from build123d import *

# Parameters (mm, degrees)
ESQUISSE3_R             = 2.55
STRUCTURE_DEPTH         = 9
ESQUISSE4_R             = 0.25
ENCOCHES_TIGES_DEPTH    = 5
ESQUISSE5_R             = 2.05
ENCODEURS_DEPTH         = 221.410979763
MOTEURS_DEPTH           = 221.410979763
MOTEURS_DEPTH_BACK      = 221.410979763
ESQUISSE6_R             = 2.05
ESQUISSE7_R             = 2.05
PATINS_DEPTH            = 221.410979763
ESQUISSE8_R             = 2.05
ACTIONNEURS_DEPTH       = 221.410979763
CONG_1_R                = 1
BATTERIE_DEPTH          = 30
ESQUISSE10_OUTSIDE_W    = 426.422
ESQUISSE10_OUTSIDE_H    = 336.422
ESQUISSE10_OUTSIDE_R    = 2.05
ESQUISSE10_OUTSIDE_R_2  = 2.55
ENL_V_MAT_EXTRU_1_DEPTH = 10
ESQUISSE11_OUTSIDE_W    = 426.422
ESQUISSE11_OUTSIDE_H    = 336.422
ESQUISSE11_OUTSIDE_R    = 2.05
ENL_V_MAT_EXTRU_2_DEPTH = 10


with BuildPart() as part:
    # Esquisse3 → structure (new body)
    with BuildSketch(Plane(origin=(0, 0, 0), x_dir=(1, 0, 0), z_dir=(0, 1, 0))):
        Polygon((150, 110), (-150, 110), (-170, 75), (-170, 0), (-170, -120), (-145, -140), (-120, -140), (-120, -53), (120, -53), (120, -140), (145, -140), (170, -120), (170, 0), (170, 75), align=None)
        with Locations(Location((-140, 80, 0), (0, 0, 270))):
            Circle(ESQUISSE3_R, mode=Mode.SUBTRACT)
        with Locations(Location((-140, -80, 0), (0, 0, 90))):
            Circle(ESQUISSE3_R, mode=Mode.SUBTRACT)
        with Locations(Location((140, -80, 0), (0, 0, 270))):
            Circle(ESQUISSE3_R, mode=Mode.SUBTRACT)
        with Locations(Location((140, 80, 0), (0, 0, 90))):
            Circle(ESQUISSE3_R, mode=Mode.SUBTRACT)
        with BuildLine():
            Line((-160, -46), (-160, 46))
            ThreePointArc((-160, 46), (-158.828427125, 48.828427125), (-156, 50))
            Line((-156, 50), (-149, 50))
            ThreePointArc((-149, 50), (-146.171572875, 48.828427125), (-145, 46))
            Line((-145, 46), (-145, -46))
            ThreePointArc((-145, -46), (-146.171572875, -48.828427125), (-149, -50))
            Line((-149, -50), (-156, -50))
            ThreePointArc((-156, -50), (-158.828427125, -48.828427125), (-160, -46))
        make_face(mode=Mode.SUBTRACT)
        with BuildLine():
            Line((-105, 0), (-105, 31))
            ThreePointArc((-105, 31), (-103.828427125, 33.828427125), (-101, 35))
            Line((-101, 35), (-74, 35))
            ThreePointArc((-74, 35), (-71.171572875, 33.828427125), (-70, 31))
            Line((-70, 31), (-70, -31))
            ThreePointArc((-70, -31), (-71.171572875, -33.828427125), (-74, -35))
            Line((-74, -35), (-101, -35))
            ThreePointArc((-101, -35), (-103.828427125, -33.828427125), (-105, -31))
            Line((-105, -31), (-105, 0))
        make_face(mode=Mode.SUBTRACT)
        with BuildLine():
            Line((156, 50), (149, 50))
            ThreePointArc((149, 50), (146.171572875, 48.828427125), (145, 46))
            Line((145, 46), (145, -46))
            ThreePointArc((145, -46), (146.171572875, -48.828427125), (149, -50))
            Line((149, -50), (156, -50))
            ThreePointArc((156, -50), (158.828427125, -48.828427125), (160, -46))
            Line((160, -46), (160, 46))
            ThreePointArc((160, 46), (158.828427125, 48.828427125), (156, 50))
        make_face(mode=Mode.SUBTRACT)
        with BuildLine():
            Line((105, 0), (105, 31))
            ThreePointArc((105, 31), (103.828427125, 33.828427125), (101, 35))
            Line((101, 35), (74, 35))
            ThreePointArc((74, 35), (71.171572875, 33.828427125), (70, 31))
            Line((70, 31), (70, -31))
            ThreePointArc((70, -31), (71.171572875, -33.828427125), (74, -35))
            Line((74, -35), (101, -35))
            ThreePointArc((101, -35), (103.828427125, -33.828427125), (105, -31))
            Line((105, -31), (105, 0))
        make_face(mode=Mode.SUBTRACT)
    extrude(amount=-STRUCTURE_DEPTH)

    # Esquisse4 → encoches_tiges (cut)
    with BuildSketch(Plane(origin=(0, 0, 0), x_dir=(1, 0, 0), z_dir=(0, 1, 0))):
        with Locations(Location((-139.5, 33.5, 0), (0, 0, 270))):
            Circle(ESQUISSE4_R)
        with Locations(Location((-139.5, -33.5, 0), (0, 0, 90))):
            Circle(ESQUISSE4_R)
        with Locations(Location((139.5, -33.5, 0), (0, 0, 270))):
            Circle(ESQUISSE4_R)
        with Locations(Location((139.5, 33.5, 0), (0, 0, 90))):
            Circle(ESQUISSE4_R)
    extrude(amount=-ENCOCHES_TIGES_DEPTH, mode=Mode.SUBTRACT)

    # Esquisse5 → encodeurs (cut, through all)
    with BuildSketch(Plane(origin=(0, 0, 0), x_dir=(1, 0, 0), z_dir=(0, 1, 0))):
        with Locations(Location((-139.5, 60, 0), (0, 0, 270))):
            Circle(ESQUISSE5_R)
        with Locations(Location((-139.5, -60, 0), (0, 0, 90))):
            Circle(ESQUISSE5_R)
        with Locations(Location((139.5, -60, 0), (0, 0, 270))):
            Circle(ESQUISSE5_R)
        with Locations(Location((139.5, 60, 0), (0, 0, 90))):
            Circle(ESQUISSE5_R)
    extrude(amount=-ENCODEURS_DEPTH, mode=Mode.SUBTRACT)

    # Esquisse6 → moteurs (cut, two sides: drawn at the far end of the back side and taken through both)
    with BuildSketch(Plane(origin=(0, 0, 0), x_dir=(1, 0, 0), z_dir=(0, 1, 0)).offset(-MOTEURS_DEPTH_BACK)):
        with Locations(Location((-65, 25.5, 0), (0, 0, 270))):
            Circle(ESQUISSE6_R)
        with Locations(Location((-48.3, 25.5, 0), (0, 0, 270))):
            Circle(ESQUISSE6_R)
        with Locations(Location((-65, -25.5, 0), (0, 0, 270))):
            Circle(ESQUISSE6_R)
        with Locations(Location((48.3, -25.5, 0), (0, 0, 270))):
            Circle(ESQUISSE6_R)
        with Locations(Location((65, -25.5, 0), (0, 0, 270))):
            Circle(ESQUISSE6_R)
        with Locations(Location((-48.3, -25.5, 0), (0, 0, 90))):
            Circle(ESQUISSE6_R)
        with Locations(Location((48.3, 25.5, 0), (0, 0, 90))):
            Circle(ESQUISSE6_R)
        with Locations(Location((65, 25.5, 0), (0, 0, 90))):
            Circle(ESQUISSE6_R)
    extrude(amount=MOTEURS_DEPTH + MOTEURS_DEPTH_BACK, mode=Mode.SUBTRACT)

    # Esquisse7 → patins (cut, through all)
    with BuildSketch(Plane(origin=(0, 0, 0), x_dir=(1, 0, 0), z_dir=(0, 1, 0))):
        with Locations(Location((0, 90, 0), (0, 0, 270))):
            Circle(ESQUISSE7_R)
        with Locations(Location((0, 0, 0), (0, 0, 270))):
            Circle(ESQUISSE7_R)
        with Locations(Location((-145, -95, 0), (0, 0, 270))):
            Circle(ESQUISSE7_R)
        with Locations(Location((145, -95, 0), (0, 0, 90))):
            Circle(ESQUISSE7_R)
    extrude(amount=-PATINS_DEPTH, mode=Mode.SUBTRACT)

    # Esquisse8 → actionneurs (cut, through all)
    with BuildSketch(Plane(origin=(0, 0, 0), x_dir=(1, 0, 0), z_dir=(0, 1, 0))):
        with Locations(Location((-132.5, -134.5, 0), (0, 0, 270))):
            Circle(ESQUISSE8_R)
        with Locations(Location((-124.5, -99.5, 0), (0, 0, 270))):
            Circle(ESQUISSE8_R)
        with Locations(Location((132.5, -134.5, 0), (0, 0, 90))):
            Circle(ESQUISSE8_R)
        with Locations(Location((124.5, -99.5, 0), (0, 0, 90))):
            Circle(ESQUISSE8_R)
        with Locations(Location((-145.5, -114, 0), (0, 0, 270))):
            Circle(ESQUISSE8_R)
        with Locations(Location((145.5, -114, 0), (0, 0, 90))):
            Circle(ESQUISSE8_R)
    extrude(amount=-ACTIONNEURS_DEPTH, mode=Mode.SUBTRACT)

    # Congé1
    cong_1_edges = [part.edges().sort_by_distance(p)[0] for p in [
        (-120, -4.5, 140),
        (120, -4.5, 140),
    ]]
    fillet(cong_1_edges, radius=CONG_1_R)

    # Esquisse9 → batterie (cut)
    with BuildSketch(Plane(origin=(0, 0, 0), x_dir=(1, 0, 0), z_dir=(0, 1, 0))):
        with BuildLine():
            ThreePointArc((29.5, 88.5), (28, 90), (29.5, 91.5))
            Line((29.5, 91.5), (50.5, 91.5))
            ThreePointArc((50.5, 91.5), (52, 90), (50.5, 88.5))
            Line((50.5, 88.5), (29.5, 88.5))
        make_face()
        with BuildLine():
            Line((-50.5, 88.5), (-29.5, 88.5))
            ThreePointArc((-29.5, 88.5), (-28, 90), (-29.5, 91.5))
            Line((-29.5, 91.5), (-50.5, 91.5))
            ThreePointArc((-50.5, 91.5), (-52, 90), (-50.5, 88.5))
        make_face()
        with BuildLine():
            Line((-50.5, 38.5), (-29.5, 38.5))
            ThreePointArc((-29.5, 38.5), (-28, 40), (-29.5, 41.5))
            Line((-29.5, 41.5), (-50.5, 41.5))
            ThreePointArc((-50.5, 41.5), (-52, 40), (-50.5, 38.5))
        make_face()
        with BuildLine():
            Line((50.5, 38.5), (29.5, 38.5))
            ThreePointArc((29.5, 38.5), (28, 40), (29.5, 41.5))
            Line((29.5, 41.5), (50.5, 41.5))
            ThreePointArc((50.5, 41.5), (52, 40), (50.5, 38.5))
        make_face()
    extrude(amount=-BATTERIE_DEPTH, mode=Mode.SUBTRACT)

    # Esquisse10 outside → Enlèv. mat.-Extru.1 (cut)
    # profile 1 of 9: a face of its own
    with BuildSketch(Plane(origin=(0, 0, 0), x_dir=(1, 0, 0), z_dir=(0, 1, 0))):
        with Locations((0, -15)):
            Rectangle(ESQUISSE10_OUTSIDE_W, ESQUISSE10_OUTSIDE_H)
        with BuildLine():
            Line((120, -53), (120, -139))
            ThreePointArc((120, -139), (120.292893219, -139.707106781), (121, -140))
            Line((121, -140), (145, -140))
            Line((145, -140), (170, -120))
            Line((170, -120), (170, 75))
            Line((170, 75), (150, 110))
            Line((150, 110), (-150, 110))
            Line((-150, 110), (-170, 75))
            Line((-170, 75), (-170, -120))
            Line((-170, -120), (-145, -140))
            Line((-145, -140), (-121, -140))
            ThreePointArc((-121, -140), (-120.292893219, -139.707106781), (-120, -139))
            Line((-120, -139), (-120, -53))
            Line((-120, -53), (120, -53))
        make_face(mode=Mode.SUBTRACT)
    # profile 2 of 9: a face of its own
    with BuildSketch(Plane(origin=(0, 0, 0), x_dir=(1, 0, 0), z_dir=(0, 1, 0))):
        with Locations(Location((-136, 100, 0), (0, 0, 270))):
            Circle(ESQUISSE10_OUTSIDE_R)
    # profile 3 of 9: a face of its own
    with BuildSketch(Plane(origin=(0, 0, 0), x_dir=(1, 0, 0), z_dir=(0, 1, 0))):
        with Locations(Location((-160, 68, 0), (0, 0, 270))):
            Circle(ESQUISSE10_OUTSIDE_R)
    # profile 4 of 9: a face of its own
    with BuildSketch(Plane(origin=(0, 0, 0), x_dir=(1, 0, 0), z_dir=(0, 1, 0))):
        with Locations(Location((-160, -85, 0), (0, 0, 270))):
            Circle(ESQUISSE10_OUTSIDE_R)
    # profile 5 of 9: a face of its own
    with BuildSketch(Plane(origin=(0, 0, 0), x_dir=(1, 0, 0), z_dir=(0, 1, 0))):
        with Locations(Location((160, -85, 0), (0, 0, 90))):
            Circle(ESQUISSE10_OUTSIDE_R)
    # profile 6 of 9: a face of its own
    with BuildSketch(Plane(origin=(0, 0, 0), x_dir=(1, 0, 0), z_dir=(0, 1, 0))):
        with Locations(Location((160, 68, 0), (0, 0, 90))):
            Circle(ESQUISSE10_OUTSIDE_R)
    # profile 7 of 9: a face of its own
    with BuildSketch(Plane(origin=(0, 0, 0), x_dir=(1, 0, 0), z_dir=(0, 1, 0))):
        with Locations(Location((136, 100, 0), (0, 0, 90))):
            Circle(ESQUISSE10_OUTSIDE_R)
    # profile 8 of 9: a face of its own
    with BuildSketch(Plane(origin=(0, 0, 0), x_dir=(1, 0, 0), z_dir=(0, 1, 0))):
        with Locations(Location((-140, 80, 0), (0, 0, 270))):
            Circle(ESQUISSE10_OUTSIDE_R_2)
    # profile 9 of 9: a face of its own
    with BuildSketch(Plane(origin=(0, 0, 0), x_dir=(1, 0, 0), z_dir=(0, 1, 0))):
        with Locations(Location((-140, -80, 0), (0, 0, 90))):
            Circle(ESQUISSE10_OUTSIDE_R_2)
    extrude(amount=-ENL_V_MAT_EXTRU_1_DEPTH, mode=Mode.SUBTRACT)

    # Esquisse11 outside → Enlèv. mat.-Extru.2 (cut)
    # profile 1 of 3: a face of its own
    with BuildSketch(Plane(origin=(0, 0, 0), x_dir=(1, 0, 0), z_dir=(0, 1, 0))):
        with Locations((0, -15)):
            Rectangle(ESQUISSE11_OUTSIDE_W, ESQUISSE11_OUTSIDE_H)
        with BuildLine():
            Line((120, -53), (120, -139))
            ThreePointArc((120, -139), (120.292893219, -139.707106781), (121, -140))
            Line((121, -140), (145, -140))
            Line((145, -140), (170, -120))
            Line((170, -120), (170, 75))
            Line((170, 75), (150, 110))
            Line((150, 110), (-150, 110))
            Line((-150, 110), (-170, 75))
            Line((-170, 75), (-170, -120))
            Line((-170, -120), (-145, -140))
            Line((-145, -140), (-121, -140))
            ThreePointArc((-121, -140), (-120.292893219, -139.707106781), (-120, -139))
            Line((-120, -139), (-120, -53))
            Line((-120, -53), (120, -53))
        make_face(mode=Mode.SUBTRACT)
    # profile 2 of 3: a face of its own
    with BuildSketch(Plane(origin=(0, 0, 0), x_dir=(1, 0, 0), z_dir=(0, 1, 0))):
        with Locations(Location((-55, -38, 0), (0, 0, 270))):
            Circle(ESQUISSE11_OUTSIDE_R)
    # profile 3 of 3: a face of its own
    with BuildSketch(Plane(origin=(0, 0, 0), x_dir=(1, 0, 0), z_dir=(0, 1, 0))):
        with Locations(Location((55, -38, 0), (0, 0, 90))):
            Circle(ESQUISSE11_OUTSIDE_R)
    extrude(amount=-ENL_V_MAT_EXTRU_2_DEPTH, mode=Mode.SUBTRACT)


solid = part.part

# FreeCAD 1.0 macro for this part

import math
import FreeCAD as App
import Part
import Sketcher
Q = App.Units.Quantity


def edges_at(feature, points):
    """Names of the edges that pass closest to the given points."""
    edges = feature.Shape.Edges
    near = lambda p: min(range(len(edges)), key=lambda i: edges[i].distToShape(Part.Vertex(*p))[0])
    return sorted({f"Edge{near(p) + 1}" for p in points})


def add_polygon(sketch, points):
    """Adds a closed chain of lines whose ends are joined by coincident constraints."""
    first, n = sketch.GeometryCount, len(points)
    for a, b in zip(points, points[1:] + points[:1]):
        sketch.addGeometry(Part.LineSegment(App.Vector(*a, 0), App.Vector(*b, 0)), False)
    for i in range(n):
        sketch.addConstraint(Sketcher.Constraint("Coincident", first + i, 2, first + (i + 1) % n, 1))

doc = App.newDocument("Part")
body = doc.addObject("PartDesign::Body", "Body")

sketch1 = body.newObject("Sketcher::SketchObject", "Sketch")
sketch1.AttachmentSupport = (doc.getObject("XZ_Plane"), [""])
sketch1.MapMode = "FlatFace"
add_polygon(sketch1, [(150, -110), (-150, -110), (-170, -75), (-170, 120), (-145, 140), (-120, 140), (-120, 53), (120, 53), (120, 140), (145, 140), (170, 120), (170, -75)])
sketch1.addGeometry(Part.Circle(App.Vector(-140, 80, 0), App.Vector(0, 0, 1), 2.5), False)
sketch1.addGeometry(Part.Circle(App.Vector(140, 80, 0), App.Vector(0, 0, 1), 2.5), False)
sketch1.addGeometry(Part.ArcOfCircle(Part.Circle(App.Vector(-156, 46, 0), App.Vector(0, 0, 1), 4), math.radians(90), math.radians(180)), False)
sketch1.addGeometry(Part.LineSegment(App.Vector(-160, 46, 0), App.Vector(-160, -46, 0)), False)
sketch1.addGeometry(Part.ArcOfCircle(Part.Circle(App.Vector(-156, -46, 0), App.Vector(0, 0, 1), 4), math.radians(180), math.radians(270)), False)
sketch1.addGeometry(Part.LineSegment(App.Vector(-156, -50, 0), App.Vector(-149, -50, 0)), False)
sketch1.addGeometry(Part.ArcOfCircle(Part.Circle(App.Vector(-149, -46, 0), App.Vector(0, 0, 1), 4), math.radians(-90), math.radians(0)), False)
sketch1.addGeometry(Part.LineSegment(App.Vector(-145, -46, 0), App.Vector(-145, 46, 0)), False)
sketch1.addGeometry(Part.ArcOfCircle(Part.Circle(App.Vector(-149, 46, 0), App.Vector(0, 0, 1), 4), math.radians(0), math.radians(90)), False)
sketch1.addGeometry(Part.LineSegment(App.Vector(-149, 50, 0), App.Vector(-156, 50, 0)), False)
sketch1.addGeometry(Part.LineSegment(App.Vector(-105, 31, 0), App.Vector(-105, -31, 0)), False)
sketch1.addGeometry(Part.ArcOfCircle(Part.Circle(App.Vector(-101, -31, 0), App.Vector(0, 0, 1), 4), math.radians(180), math.radians(270)), False)
sketch1.addGeometry(Part.LineSegment(App.Vector(-101, -35, 0), App.Vector(-74, -35, 0)), False)
sketch1.addGeometry(Part.ArcOfCircle(Part.Circle(App.Vector(-74, -31, 0), App.Vector(0, 0, 1), 4), math.radians(-90), math.radians(0)), False)
sketch1.addGeometry(Part.LineSegment(App.Vector(-70, -31, 0), App.Vector(-70, 31, 0)), False)
sketch1.addGeometry(Part.ArcOfCircle(Part.Circle(App.Vector(-74, 31, 0), App.Vector(0, 0, 1), 4), math.radians(0), math.radians(90)), False)
sketch1.addGeometry(Part.LineSegment(App.Vector(-74, 35, 0), App.Vector(-101, 35, 0)), False)
sketch1.addGeometry(Part.ArcOfCircle(Part.Circle(App.Vector(-101, 31, 0), App.Vector(0, 0, 1), 4), math.radians(90), math.radians(180)), False)
sketch1.addGeometry(Part.Circle(App.Vector(-140, -80, 0), App.Vector(0, 0, 1), 2.5), False)
sketch1.addGeometry(Part.ArcOfCircle(Part.Circle(App.Vector(101, -31, 0), App.Vector(0, 0, 1), 4), math.radians(-90), math.radians(0)), False)
sketch1.addGeometry(Part.LineSegment(App.Vector(105, -31, 0), App.Vector(105, 31, 0)), False)
sketch1.addGeometry(Part.ArcOfCircle(Part.Circle(App.Vector(101, 31, 0), App.Vector(0, 0, 1), 4), math.radians(0), math.radians(90)), False)
sketch1.addGeometry(Part.LineSegment(App.Vector(101, 35, 0), App.Vector(74, 35, 0)), False)
sketch1.addGeometry(Part.ArcOfCircle(Part.Circle(App.Vector(74, 31, 0), App.Vector(0, 0, 1), 4), math.radians(90), math.radians(180)), False)
sketch1.addGeometry(Part.LineSegment(App.Vector(70, 31, 0), App.Vector(70, -31, 0)), False)
sketch1.addGeometry(Part.ArcOfCircle(Part.Circle(App.Vector(74, -31, 0), App.Vector(0, 0, 1), 4), math.radians(180), math.radians(270)), False)
sketch1.addGeometry(Part.LineSegment(App.Vector(74, -35, 0), App.Vector(101, -35, 0)), False)
sketch1.addGeometry(Part.LineSegment(App.Vector(149, -50, 0), App.Vector(156, -50, 0)), False)
sketch1.addGeometry(Part.ArcOfCircle(Part.Circle(App.Vector(156, -46, 0), App.Vector(0, 0, 1), 4), math.radians(-90), math.radians(0)), False)
sketch1.addGeometry(Part.LineSegment(App.Vector(160, -46, 0), App.Vector(160, 46, 0)), False)
sketch1.addGeometry(Part.ArcOfCircle(Part.Circle(App.Vector(156, 46, 0), App.Vector(0, 0, 1), 4), math.radians(0), math.radians(90)), False)
sketch1.addGeometry(Part.LineSegment(App.Vector(156, 50, 0), App.Vector(149, 50, 0)), False)
sketch1.addGeometry(Part.ArcOfCircle(Part.Circle(App.Vector(149, 46, 0), App.Vector(0, 0, 1), 4), math.radians(90), math.radians(180)), False)
sketch1.addGeometry(Part.LineSegment(App.Vector(145, 46, 0), App.Vector(145, -46, 0)), False)
sketch1.addGeometry(Part.ArcOfCircle(Part.Circle(App.Vector(149, -46, 0), App.Vector(0, 0, 1), 4), math.radians(180), math.radians(270)), False)
sketch1.addGeometry(Part.Circle(App.Vector(140, -80, 0), App.Vector(0, 0, 1), 2.5), False)
sketch1.addConstraint(Sketcher.Constraint("Tangent", 14, 2, 15, 1))
sketch1.addConstraint(Sketcher.Constraint("Tangent", 15, 2, 16, 1))
sketch1.addConstraint(Sketcher.Constraint("Tangent", 16, 2, 17, 1))
sketch1.addConstraint(Sketcher.Constraint("Tangent", 17, 2, 18, 1))
sketch1.addConstraint(Sketcher.Constraint("Tangent", 18, 2, 19, 1))
sketch1.addConstraint(Sketcher.Constraint("Tangent", 19, 2, 20, 1))
sketch1.addConstraint(Sketcher.Constraint("Tangent", 20, 2, 21, 1))
sketch1.addConstraint(Sketcher.Constraint("Tangent", 21, 2, 14, 1))
sketch1.addConstraint(Sketcher.Constraint("Tangent", 22, 2, 23, 1))
sketch1.addConstraint(Sketcher.Constraint("Tangent", 23, 2, 24, 1))
sketch1.addConstraint(Sketcher.Constraint("Tangent", 24, 2, 25, 1))
sketch1.addConstraint(Sketcher.Constraint("Tangent", 25, 2, 26, 1))
sketch1.addConstraint(Sketcher.Constraint("Tangent", 26, 2, 27, 1))
sketch1.addConstraint(Sketcher.Constraint("Tangent", 27, 2, 28, 1))
sketch1.addConstraint(Sketcher.Constraint("Tangent", 28, 2, 29, 1))
sketch1.addConstraint(Sketcher.Constraint("Tangent", 29, 2, 22, 1))
sketch1.addConstraint(Sketcher.Constraint("Tangent", 31, 2, 32, 1))
sketch1.addConstraint(Sketcher.Constraint("Tangent", 32, 2, 33, 1))
sketch1.addConstraint(Sketcher.Constraint("Tangent", 33, 2, 34, 1))
sketch1.addConstraint(Sketcher.Constraint("Tangent", 34, 2, 35, 1))
sketch1.addConstraint(Sketcher.Constraint("Tangent", 35, 2, 36, 1))
sketch1.addConstraint(Sketcher.Constraint("Tangent", 36, 2, 37, 1))
sketch1.addConstraint(Sketcher.Constraint("Tangent", 37, 2, 38, 1))
sketch1.addConstraint(Sketcher.Constraint("Tangent", 38, 2, 31, 1))
sketch1.addConstraint(Sketcher.Constraint("Tangent", 39, 2, 40, 1))
sketch1.addConstraint(Sketcher.Constraint("Tangent", 40, 2, 41, 1))
sketch1.addConstraint(Sketcher.Constraint("Tangent", 41, 2, 42, 1))
sketch1.addConstraint(Sketcher.Constraint("Tangent", 42, 2, 43, 1))
sketch1.addConstraint(Sketcher.Constraint("Tangent", 43, 2, 44, 1))
sketch1.addConstraint(Sketcher.Constraint("Tangent", 44, 2, 45, 1))
sketch1.addConstraint(Sketcher.Constraint("Tangent", 45, 2, 46, 1))
sketch1.addConstraint(Sketcher.Constraint("Tangent", 46, 2, 39, 1))
sketch1.addConstraint(Sketcher.Constraint("Horizontal", 0))
sketch1.addConstraint(Sketcher.Constraint("Vertical", 2))
sketch1.addConstraint(Sketcher.Constraint("Horizontal", 4))
sketch1.addConstraint(Sketcher.Constraint("Vertical", 5))
sketch1.addConstraint(Sketcher.Constraint("Horizontal", 6))
sketch1.addConstraint(Sketcher.Constraint("Vertical", 7))
sketch1.addConstraint(Sketcher.Constraint("Horizontal", 8))
sketch1.addConstraint(Sketcher.Constraint("Vertical", 10))
sketch1.addConstraint(Sketcher.Constraint("Vertical", 15))
sketch1.addConstraint(Sketcher.Constraint("Horizontal", 17))
sketch1.addConstraint(Sketcher.Constraint("Vertical", 19))
sketch1.addConstraint(Sketcher.Constraint("Horizontal", 21))
sketch1.addConstraint(Sketcher.Constraint("Vertical", 22))
sketch1.addConstraint(Sketcher.Constraint("Horizontal", 24))
sketch1.addConstraint(Sketcher.Constraint("Vertical", 26))
sketch1.addConstraint(Sketcher.Constraint("Horizontal", 28))
sketch1.addConstraint(Sketcher.Constraint("Vertical", 32))
sketch1.addConstraint(Sketcher.Constraint("Horizontal", 34))
sketch1.addConstraint(Sketcher.Constraint("Vertical", 36))
sketch1.addConstraint(Sketcher.Constraint("Horizontal", 38))
sketch1.addConstraint(Sketcher.Constraint("Horizontal", 39))
sketch1.addConstraint(Sketcher.Constraint("Vertical", 41))
sketch1.addConstraint(Sketcher.Constraint("Horizontal", 43))
sketch1.addConstraint(Sketcher.Constraint("Vertical", 45))
sketch1.addConstraint(Sketcher.Constraint("Equal", 12, 13))
sketch1.addConstraint(Sketcher.Constraint("Equal", 14, 16))
sketch1.addConstraint(Sketcher.Constraint("Equal", 16, 18))
sketch1.addConstraint(Sketcher.Constraint("Equal", 18, 20))
sketch1.addConstraint(Sketcher.Constraint("Equal", 20, 23))
sketch1.addConstraint(Sketcher.Constraint("Equal", 23, 25))
sketch1.addConstraint(Sketcher.Constraint("Equal", 25, 27))
sketch1.addConstraint(Sketcher.Constraint("Equal", 27, 29))
sketch1.addConstraint(Sketcher.Constraint("Equal", 13, 30))
sketch1.addConstraint(Sketcher.Constraint("Equal", 29, 31))
sketch1.addConstraint(Sketcher.Constraint("Equal", 31, 33))
sketch1.addConstraint(Sketcher.Constraint("Equal", 33, 35))
sketch1.addConstraint(Sketcher.Constraint("Equal", 35, 37))
sketch1.addConstraint(Sketcher.Constraint("Equal", 37, 40))
sketch1.addConstraint(Sketcher.Constraint("Equal", 40, 42))
sketch1.addConstraint(Sketcher.Constraint("Equal", 42, 44))
sketch1.addConstraint(Sketcher.Constraint("Equal", 44, 46))
sketch1.addConstraint(Sketcher.Constraint("Equal", 30, 47))
sketch1.addConstraint(Sketcher.Constraint("Symmetric", 13, 3, 30, 3, -1, 1))
sketch1.addConstraint(Sketcher.Constraint("Symmetric", 29, 3, 31, 3, -1, 1))
sketch1.addConstraint(Sketcher.Constraint("Symmetric", 25, 3, 35, 3, -1, 1))
sketch1.addConstraint(Sketcher.Constraint("Symmetric", 14, 3, 40, 3, -1, 1))
sketch1.addConstraint(Sketcher.Constraint("Symmetric", 18, 3, 44, 3, -1, 1))
sketch1.addConstraint(Sketcher.Constraint("Symmetric", 12, 3, 47, 3, -1, 1))
sketch1.addConstraint(Sketcher.Constraint("Symmetric", 12, 3, 13, 3, -2))
sketch1.addConstraint(Sketcher.Constraint("Symmetric", 4, 2, 7, 2, -2))
sketch1.addConstraint(Sketcher.Constraint("Symmetric", 2, 2, 9, 2, -2))
sketch1.addConstraint(Sketcher.Constraint("Horizontal", 25, 3, 31, 3))
sketch1.addConstraint(Sketcher.Constraint("Horizontal", 18, 3, 40, 3))
sketch1.addConstraint(Sketcher.Constraint("Horizontal", 1, 2, 10, 2))
sketch1.addConstraint(Sketcher.Constraint("Vertical", 3, 2, 18, 2))
sketch1.addConstraint(Sketcher.Constraint("Vertical", 8, 2, 44, 2))
sketch1.addConstraint(Sketcher.Constraint("Equal", 1, 11))
sketch1.addConstraint(Sketcher.Constraint("Radius", 14, Q("4 mm")))
sketch1.addConstraint(Sketcher.Constraint("Diameter", 12, Q("5.1 mm")))
sketch1.addConstraint(Sketcher.Constraint("DistanceX", 0, 2, 0, 1, Q("300 mm")))
sketch1.addConstraint(Sketcher.Constraint("DistanceX", 4, 1, 4, 2, Q("25 mm")))
sketch1.addConstraint(Sketcher.Constraint("DistanceX", 6, 1, 6, 2, Q("240 mm")))
sketch1.addConstraint(Sketcher.Constraint("DistanceX", 17, 1, 17, 2, Q("7 mm")))
sketch1.addConstraint(Sketcher.Constraint("DistanceX", 24, 1, 24, 2, Q("27 mm")))
sketch1.addConstraint(Sketcher.Constraint("DistanceY", 2, 1, 2, 2, Q("195 mm")))
sketch1.addConstraint(Sketcher.Constraint("DistanceY", 5, 2, 5, 1, Q("87 mm")))
sketch1.addConstraint(Sketcher.Constraint("DistanceY", 15, 2, 15, 1, Q("92 mm")))
sketch1.addConstraint(Sketcher.Constraint("DistanceY", 22, 2, 22, 1, Q("62 mm")))
sketch1.addConstraint(Sketcher.Constraint("DistanceX", 12, 3, -1, 1, Q("140 mm")))
sketch1.addConstraint(Sketcher.Constraint("DistanceY", -1, 1, 12, 3, Q("80 mm")))
sketch1.addConstraint(Sketcher.Constraint("DistanceX", 23, 3, -1, 1, Q("101 mm")))
sketch1.addConstraint(Sketcher.Constraint("DistanceY", 0, 2, -1, 1, Q("110 mm")))
sketch1.addConstraint(Sketcher.Constraint("DistanceX", 1, 2, -1, 1, Q("170 mm")))
sketch1.addConstraint(Sketcher.Constraint("DistanceY", 1, 2, -1, 1, Q("75 mm")))
sketch1.addConstraint(Sketcher.Constraint("DistanceY", -1, 1, 3, 2, Q("140 mm")))
pad1 = body.newObject("PartDesign::Pad", "Pad")
pad1.Profile = sketch1
pad1.Length = 9

sketch2 = body.newObject("Sketcher::SketchObject", "Sketch001")
sketch2.AttachmentSupport = (doc.getObject("XZ_Plane"), [""])
sketch2.MapMode = "FlatFace"
sketch2.addGeometry(Part.Circle(App.Vector(-139.5, -33.5, 0), App.Vector(0, 0, 1), 0.25), False)
sketch2.addGeometry(Part.Circle(App.Vector(-139.5, 33.5, 0), App.Vector(0, 0, 1), 0.25), False)
sketch2.addGeometry(Part.Circle(App.Vector(139.5, 33.5, 0), App.Vector(0, 0, 1), 0.25), False)
sketch2.addGeometry(Part.Circle(App.Vector(139.5, -33.5, 0), App.Vector(0, 0, 1), 0.25), False)
sketch2.addConstraint(Sketcher.Constraint("Equal", 0, 1))
sketch2.addConstraint(Sketcher.Constraint("Equal", 1, 2))
sketch2.addConstraint(Sketcher.Constraint("Equal", 2, 3))
sketch2.addConstraint(Sketcher.Constraint("Symmetric", 0, 3, 2, 3, -1, 1))
sketch2.addConstraint(Sketcher.Constraint("Symmetric", 1, 3, 3, 3, -1, 1))
sketch2.addConstraint(Sketcher.Constraint("Symmetric", 1, 3, 2, 3, -2))
sketch2.addConstraint(Sketcher.Constraint("Diameter", 0, Q("0.5 mm")))
sketch2.addConstraint(Sketcher.Constraint("DistanceY", 0, 3, 1, 3, Q("67 mm")))
sketch2.addConstraint(Sketcher.Constraint("DistanceX", 1, 3, 2, 3, Q("279 mm")))
pocket1 = body.newObject("PartDesign::Pocket", "Pocket")
pocket1.Profile = sketch2
pocket1.Length = 5
pocket1.Reversed = True

sketch3 = body.newObject("Sketcher::SketchObject", "Sketch002")
sketch3.AttachmentSupport = (doc.getObject("XZ_Plane"), [""])
sketch3.MapMode = "FlatFace"
sketch3.addGeometry(Part.Circle(App.Vector(-139.5, -60, 0), App.Vector(0, 0, 1), 2), False)
sketch3.addGeometry(Part.Circle(App.Vector(-139.5, 60, 0), App.Vector(0, 0, 1), 2), False)
sketch3.addGeometry(Part.Circle(App.Vector(139.5, 60, 0), App.Vector(0, 0, 1), 2), False)
sketch3.addGeometry(Part.Circle(App.Vector(139.5, -60, 0), App.Vector(0, 0, 1), 2), False)
sketch3.addConstraint(Sketcher.Constraint("Equal", 0, 1))
sketch3.addConstraint(Sketcher.Constraint("Equal", 1, 2))
sketch3.addConstraint(Sketcher.Constraint("Equal", 2, 3))
sketch3.addConstraint(Sketcher.Constraint("Symmetric", 0, 3, 2, 3, -1, 1))
sketch3.addConstraint(Sketcher.Constraint("Symmetric", 1, 3, 3, 3, -1, 1))
sketch3.addConstraint(Sketcher.Constraint("Symmetric", 1, 3, 2, 3, -2))
sketch3.addConstraint(Sketcher.Constraint("Diameter", 0, Q("4.1 mm")))
sketch3.addConstraint(Sketcher.Constraint("DistanceY", 0, 3, -1, 1, Q("60 mm")))
sketch3.addConstraint(Sketcher.Constraint("DistanceX", 1, 3, 2, 3, Q("279 mm")))
pocket2 = body.newObject("PartDesign::Pocket", "Pocket001")
pocket2.Profile = sketch3
pocket2.Type = "ThroughAll"
pocket2.Reversed = True

sketch4 = body.newObject("Sketcher::SketchObject", "Sketch003")
sketch4.AttachmentSupport = (doc.getObject("XZ_Plane"), [""])
sketch4.MapMode = "FlatFace"
sketch4.addGeometry(Part.Circle(App.Vector(-65, -25.5, 0), App.Vector(0, 0, 1), 2), False)
sketch4.addGeometry(Part.Circle(App.Vector(-48.3, -25.5, 0), App.Vector(0, 0, 1), 2), False)
sketch4.addGeometry(Part.Circle(App.Vector(-65, 25.5, 0), App.Vector(0, 0, 1), 2), False)
sketch4.addGeometry(Part.Circle(App.Vector(48.3, 25.5, 0), App.Vector(0, 0, 1), 2), False)
sketch4.addGeometry(Part.Circle(App.Vector(65, 25.5, 0), App.Vector(0, 0, 1), 2), False)
sketch4.addGeometry(Part.Circle(App.Vector(-48.3, 25.5, 0), App.Vector(0, 0, 1), 2), False)
sketch4.addGeometry(Part.Circle(App.Vector(48.3, -25.5, 0), App.Vector(0, 0, 1), 2), False)
sketch4.addGeometry(Part.Circle(App.Vector(65, -25.5, 0), App.Vector(0, 0, 1), 2), False)
sketch4.addConstraint(Sketcher.Constraint("Equal", 0, 1))
sketch4.addConstraint(Sketcher.Constraint("Equal", 1, 2))
sketch4.addConstraint(Sketcher.Constraint("Equal", 2, 3))
sketch4.addConstraint(Sketcher.Constraint("Equal", 3, 4))
sketch4.addConstraint(Sketcher.Constraint("Equal", 4, 5))
sketch4.addConstraint(Sketcher.Constraint("Equal", 5, 6))
sketch4.addConstraint(Sketcher.Constraint("Equal", 6, 7))
sketch4.addConstraint(Sketcher.Constraint("Symmetric", 1, 3, 3, 3, -1, 1))
sketch4.addConstraint(Sketcher.Constraint("Symmetric", 0, 3, 4, 3, -1, 1))
sketch4.addConstraint(Sketcher.Constraint("Symmetric", 5, 3, 6, 3, -1, 1))
sketch4.addConstraint(Sketcher.Constraint("Symmetric", 2, 3, 7, 3, -1, 1))
sketch4.addConstraint(Sketcher.Constraint("Symmetric", 2, 3, 4, 3, -2))
sketch4.addConstraint(Sketcher.Constraint("Symmetric", 3, 3, 5, 3, -2))
sketch4.addConstraint(Sketcher.Constraint("Horizontal", 0, 3, 1, 3))
sketch4.addConstraint(Sketcher.Constraint("Diameter", 0, Q("4.1 mm")))
sketch4.addConstraint(Sketcher.Constraint("DistanceX", 0, 3, -1, 1, Q("65 mm")))
sketch4.addConstraint(Sketcher.Constraint("DistanceY", 0, 3, 2, 3, Q("51 mm")))
sketch4.addConstraint(Sketcher.Constraint("DistanceX", 1, 3, -1, 1, Q("48.3 mm")))
pocket3 = body.newObject("PartDesign::Pocket", "Pocket002")
pocket3.Profile = sketch4
pocket3.Type = "ThroughAll"
pocket3.Midplane = True

sketch5 = body.newObject("Sketcher::SketchObject", "Sketch004")
sketch5.AttachmentSupport = (doc.getObject("XZ_Plane"), [""])
sketch5.MapMode = "FlatFace"
sketch5.addGeometry(Part.Circle(App.Vector(0, -90, 0), App.Vector(0, 0, 1), 2), False)
sketch5.addGeometry(Part.Circle(App.Vector(0, 0, 0), App.Vector(0, 0, 1), 2), False)
sketch5.addGeometry(Part.Circle(App.Vector(-145, 95, 0), App.Vector(0, 0, 1), 2), False)
sketch5.addGeometry(Part.Circle(App.Vector(145, 95, 0), App.Vector(0, 0, 1), 2), False)
sketch5.addConstraint(Sketcher.Constraint("Coincident", 1, 3, -1, 1))
sketch5.addConstraint(Sketcher.Constraint("Equal", 0, 1))
sketch5.addConstraint(Sketcher.Constraint("Equal", 1, 2))
sketch5.addConstraint(Sketcher.Constraint("Equal", 2, 3))
sketch5.addConstraint(Sketcher.Constraint("Symmetric", 2, 3, 3, 3, -2))
sketch5.addConstraint(Sketcher.Constraint("PointOnObject", 0, 3, -2))
sketch5.addConstraint(Sketcher.Constraint("Diameter", 0, Q("4.1 mm")))
sketch5.addConstraint(Sketcher.Constraint("DistanceY", 0, 3, -1, 1, Q("90 mm")))
sketch5.addConstraint(Sketcher.Constraint("DistanceX", 2, 3, -1, 1, Q("145 mm")))
sketch5.addConstraint(Sketcher.Constraint("DistanceY", -1, 1, 2, 3, Q("95 mm")))
pocket4 = body.newObject("PartDesign::Pocket", "Pocket003")
pocket4.Profile = sketch5
pocket4.Type = "ThroughAll"
pocket4.Reversed = True

sketch6 = body.newObject("Sketcher::SketchObject", "Sketch005")
sketch6.AttachmentSupport = (doc.getObject("XZ_Plane"), [""])
sketch6.MapMode = "FlatFace"
sketch6.addGeometry(Part.Circle(App.Vector(-132.5, 134.5, 0), App.Vector(0, 0, 1), 2), False)
sketch6.addGeometry(Part.Circle(App.Vector(-124.5, 99.5, 0), App.Vector(0, 0, 1), 2), False)
sketch6.addGeometry(Part.Circle(App.Vector(132.5, 134.5, 0), App.Vector(0, 0, 1), 2), False)
sketch6.addGeometry(Part.Circle(App.Vector(124.5, 99.5, 0), App.Vector(0, 0, 1), 2), False)
sketch6.addGeometry(Part.Circle(App.Vector(-145.5, 114, 0), App.Vector(0, 0, 1), 2), False)
sketch6.addGeometry(Part.Circle(App.Vector(145.5, 114, 0), App.Vector(0, 0, 1), 2), False)
sketch6.addConstraint(Sketcher.Constraint("Equal", 0, 1))
sketch6.addConstraint(Sketcher.Constraint("Equal", 1, 2))
sketch6.addConstraint(Sketcher.Constraint("Equal", 2, 3))
sketch6.addConstraint(Sketcher.Constraint("Equal", 3, 4))
sketch6.addConstraint(Sketcher.Constraint("Equal", 4, 5))
sketch6.addConstraint(Sketcher.Constraint("Symmetric", 0, 3, 2, 3, -2))
sketch6.addConstraint(Sketcher.Constraint("Symmetric", 1, 3, 3, 3, -2))
sketch6.addConstraint(Sketcher.Constraint("Symmetric", 4, 3, 5, 3, -2))
sketch6.addConstraint(Sketcher.Constraint("Diameter", 0, Q("4.1 mm")))
sketch6.addConstraint(Sketcher.Constraint("DistanceY", -1, 1, 4, 3, Q("114 mm")))
sketch6.addConstraint(Sketcher.Constraint("DistanceX", 0, 3, 1, 3, Q("8 mm")))
sketch6.addConstraint(Sketcher.Constraint("DistanceY", 1, 3, 0, 3, Q("35 mm")))
sketch6.addConstraint(Sketcher.Constraint("DistanceX", 1, 3, 2, 3, Q("257 mm")))
sketch6.addConstraint(Sketcher.Constraint("DistanceX", 4, 3, 0, 3, Q("13 mm")))
sketch6.addConstraint(Sketcher.Constraint("DistanceY", -1, 1, 0, 3, Q("134.5 mm")))
pocket5 = body.newObject("PartDesign::Pocket", "Pocket004")
pocket5.Profile = sketch6
pocket5.Type = "ThroughAll"
pocket5.Reversed = True
doc.recompute()

fillet = body.newObject("PartDesign::Fillet", "Fillet")
fillet.Base = (pocket5, edges_at(pocket5, [(-120, -4.5, 140), (120, -4.5, 140)]))
fillet.Radius = 1

sketch7 = body.newObject("Sketcher::SketchObject", "Sketch006")
sketch7.AttachmentSupport = (doc.getObject("XZ_Plane"), [""])
sketch7.MapMode = "FlatFace"
sketch7.addGeometry(Part.ArcOfCircle(Part.Circle(App.Vector(29.5, -90, 0), App.Vector(0, 0, 1), 1.5), math.radians(90), math.radians(270)), False)
sketch7.addGeometry(Part.LineSegment(App.Vector(29.5, -88.5, 0), App.Vector(50.5, -88.5, 0)), False)
sketch7.addGeometry(Part.ArcOfCircle(Part.Circle(App.Vector(50.5, -90, 0), App.Vector(0, 0, 1), 1.5), math.radians(-90), math.radians(90)), False)
sketch7.addGeometry(Part.LineSegment(App.Vector(50.5, -91.5, 0), App.Vector(29.5, -91.5, 0)), False)
sketch7.addGeometry(Part.LineSegment(App.Vector(-50.5, -88.5, 0), App.Vector(-29.5, -88.5, 0)), False)
sketch7.addGeometry(Part.ArcOfCircle(Part.Circle(App.Vector(-29.5, -90, 0), App.Vector(0, 0, 1), 1.5), math.radians(-90), math.radians(90)), False)
sketch7.addGeometry(Part.LineSegment(App.Vector(-29.5, -91.5, 0), App.Vector(-50.5, -91.5, 0)), False)
sketch7.addGeometry(Part.ArcOfCircle(Part.Circle(App.Vector(-50.5, -90, 0), App.Vector(0, 0, 1), 1.5), math.radians(90), math.radians(270)), False)
sketch7.addGeometry(Part.LineSegment(App.Vector(-50.5, -38.5, 0), App.Vector(-29.5, -38.5, 0)), False)
sketch7.addGeometry(Part.ArcOfCircle(Part.Circle(App.Vector(-29.5, -40, 0), App.Vector(0, 0, 1), 1.5), math.radians(-90), math.radians(90)), False)
sketch7.addGeometry(Part.LineSegment(App.Vector(-29.5, -41.5, 0), App.Vector(-50.5, -41.5, 0)), False)
sketch7.addGeometry(Part.ArcOfCircle(Part.Circle(App.Vector(-50.5, -40, 0), App.Vector(0, 0, 1), 1.5), math.radians(90), math.radians(270)), False)
sketch7.addGeometry(Part.LineSegment(App.Vector(29.5, -38.5, 0), App.Vector(50.5, -38.5, 0)), False)
sketch7.addGeometry(Part.ArcOfCircle(Part.Circle(App.Vector(50.5, -40, 0), App.Vector(0, 0, 1), 1.5), math.radians(-90), math.radians(90)), False)
sketch7.addGeometry(Part.LineSegment(App.Vector(50.5, -41.5, 0), App.Vector(29.5, -41.5, 0)), False)
sketch7.addGeometry(Part.ArcOfCircle(Part.Circle(App.Vector(29.5, -40, 0), App.Vector(0, 0, 1), 1.5), math.radians(90), math.radians(270)), False)
sketch7.addConstraint(Sketcher.Constraint("Tangent", 0, 1, 1, 1))
sketch7.addConstraint(Sketcher.Constraint("Tangent", 1, 2, 2, 2))
sketch7.addConstraint(Sketcher.Constraint("Tangent", 2, 1, 3, 1))
sketch7.addConstraint(Sketcher.Constraint("Tangent", 3, 2, 0, 2))
sketch7.addConstraint(Sketcher.Constraint("Tangent", 4, 2, 5, 2))
sketch7.addConstraint(Sketcher.Constraint("Tangent", 5, 1, 6, 1))
sketch7.addConstraint(Sketcher.Constraint("Tangent", 6, 2, 7, 2))
sketch7.addConstraint(Sketcher.Constraint("Tangent", 7, 1, 4, 1))
sketch7.addConstraint(Sketcher.Constraint("Tangent", 8, 2, 9, 2))
sketch7.addConstraint(Sketcher.Constraint("Tangent", 9, 1, 10, 1))
sketch7.addConstraint(Sketcher.Constraint("Tangent", 10, 2, 11, 2))
sketch7.addConstraint(Sketcher.Constraint("Tangent", 11, 1, 8, 1))
sketch7.addConstraint(Sketcher.Constraint("Tangent", 12, 2, 13, 2))
sketch7.addConstraint(Sketcher.Constraint("Tangent", 13, 1, 14, 1))
sketch7.addConstraint(Sketcher.Constraint("Tangent", 14, 2, 15, 2))
sketch7.addConstraint(Sketcher.Constraint("Tangent", 15, 1, 12, 1))
sketch7.addConstraint(Sketcher.Constraint("Horizontal", 1))
sketch7.addConstraint(Sketcher.Constraint("Horizontal", 3))
sketch7.addConstraint(Sketcher.Constraint("Horizontal", 4))
sketch7.addConstraint(Sketcher.Constraint("Horizontal", 6))
sketch7.addConstraint(Sketcher.Constraint("Horizontal", 8))
sketch7.addConstraint(Sketcher.Constraint("Horizontal", 10))
sketch7.addConstraint(Sketcher.Constraint("Horizontal", 12))
sketch7.addConstraint(Sketcher.Constraint("Horizontal", 14))
sketch7.addConstraint(Sketcher.Constraint("Equal", 2, 5))
sketch7.addConstraint(Sketcher.Constraint("Equal", 7, 9))
sketch7.addConstraint(Sketcher.Constraint("Equal", 11, 13))
sketch7.addConstraint(Sketcher.Constraint("Symmetric", 0, 3, 5, 3, -2))
sketch7.addConstraint(Sketcher.Constraint("Symmetric", 11, 3, 13, 3, -2))
sketch7.addConstraint(Sketcher.Constraint("Vertical", 5, 3, 9, 3))
sketch7.addConstraint(Sketcher.Constraint("Vertical", 7, 3, 11, 3))
sketch7.addConstraint(Sketcher.Constraint("Vertical", 2, 3, 13, 3))
sketch7.addConstraint(Sketcher.Constraint("Vertical", 0, 3, 15, 3))
sketch7.addConstraint(Sketcher.Constraint("Radius", 0, Q("1.5 mm")))
sketch7.addConstraint(Sketcher.Constraint("DistanceX", 1, 1, 1, 2, Q("21 mm")))
sketch7.addConstraint(Sketcher.Constraint("DistanceY", 0, 3, -1, 1, Q("90 mm")))
sketch7.addConstraint(Sketcher.Constraint("DistanceY", 9, 3, -1, 1, Q("40 mm")))
sketch7.addConstraint(Sketcher.Constraint("DistanceX", 5, 3, 0, 3, Q("59 mm")))
pocket6 = body.newObject("PartDesign::Pocket", "Pocket005")
pocket6.Profile = sketch7
pocket6.Length = 30
pocket6.Reversed = True

sketch8 = body.newObject("Sketcher::SketchObject", "Sketch007")
sketch8.AttachmentSupport = (doc.getObject("XZ_Plane"), [""])
sketch8.MapMode = "FlatFace"
add_polygon(sketch8, [(-213.2, -153.2), (-213.2, 183.2), (213.2, 183.2), (213.2, -153.2)])
sketch8.addGeometry(Part.LineSegment(App.Vector(120, 139, 0), App.Vector(120, 53, 0)), False)
sketch8.addGeometry(Part.LineSegment(App.Vector(120, 53, 0), App.Vector(-120, 53, 0)), False)
sketch8.addGeometry(Part.LineSegment(App.Vector(-120, 53, 0), App.Vector(-120, 139, 0)), False)
sketch8.addGeometry(Part.ArcOfCircle(Part.Circle(App.Vector(-121, 139, 0), App.Vector(0, 0, 1), 1), math.radians(0), math.radians(90)), False)
sketch8.addGeometry(Part.LineSegment(App.Vector(-121, 140, 0), App.Vector(-145, 140, 0)), False)
sketch8.addGeometry(Part.LineSegment(App.Vector(-145, 140, 0), App.Vector(-170, 120, 0)), False)
sketch8.addGeometry(Part.LineSegment(App.Vector(-170, 120, 0), App.Vector(-170, -75, 0)), False)
sketch8.addGeometry(Part.LineSegment(App.Vector(-170, -75, 0), App.Vector(-150, -110, 0)), False)
sketch8.addGeometry(Part.LineSegment(App.Vector(-150, -110, 0), App.Vector(150, -110, 0)), False)
sketch8.addGeometry(Part.LineSegment(App.Vector(150, -110, 0), App.Vector(170, -75, 0)), False)
sketch8.addGeometry(Part.LineSegment(App.Vector(170, -75, 0), App.Vector(170, 120, 0)), False)
sketch8.addGeometry(Part.LineSegment(App.Vector(170, 120, 0), App.Vector(145, 140, 0)), False)
sketch8.addGeometry(Part.LineSegment(App.Vector(145, 140, 0), App.Vector(121, 140, 0)), False)
sketch8.addGeometry(Part.ArcOfCircle(Part.Circle(App.Vector(121, 139, 0), App.Vector(0, 0, 1), 1), math.radians(90), math.radians(180)), False)
sketch8.addGeometry(Part.Circle(App.Vector(-136, -100, 0), App.Vector(0, 0, 1), 2), False)
sketch8.addGeometry(Part.Circle(App.Vector(-160, -68, 0), App.Vector(0, 0, 1), 2), False)
sketch8.addGeometry(Part.Circle(App.Vector(-160, 85, 0), App.Vector(0, 0, 1), 2), False)
sketch8.addGeometry(Part.Circle(App.Vector(160, 85, 0), App.Vector(0, 0, 1), 2), False)
sketch8.addGeometry(Part.Circle(App.Vector(160, -68, 0), App.Vector(0, 0, 1), 2), False)
sketch8.addGeometry(Part.Circle(App.Vector(136, -100, 0), App.Vector(0, 0, 1), 2), False)
sketch8.addGeometry(Part.Circle(App.Vector(-140, -80, 0), App.Vector(0, 0, 1), 2.5), False)
sketch8.addGeometry(Part.Circle(App.Vector(-140, 80, 0), App.Vector(0, 0, 1), 2.5), False)
sketch8.addConstraint(Sketcher.Constraint("Coincident", 4, 2, 5, 1))
sketch8.addConstraint(Sketcher.Constraint("Coincident", 5, 2, 6, 1))
sketch8.addConstraint(Sketcher.Constraint("Tangent", 6, 2, 7, 1))
sketch8.addConstraint(Sketcher.Constraint("Tangent", 7, 2, 8, 1))
sketch8.addConstraint(Sketcher.Constraint("Coincident", 8, 2, 9, 1))
sketch8.addConstraint(Sketcher.Constraint("Coincident", 9, 2, 10, 1))
sketch8.addConstraint(Sketcher.Constraint("Coincident", 10, 2, 11, 1))
sketch8.addConstraint(Sketcher.Constraint("Coincident", 11, 2, 12, 1))
sketch8.addConstraint(Sketcher.Constraint("Coincident", 12, 2, 13, 1))
sketch8.addConstraint(Sketcher.Constraint("Coincident", 13, 2, 14, 1))
sketch8.addConstraint(Sketcher.Constraint("Coincident", 14, 2, 15, 1))
sketch8.addConstraint(Sketcher.Constraint("Coincident", 15, 2, 16, 1))
sketch8.addConstraint(Sketcher.Constraint("Tangent", 16, 2, 17, 1))
sketch8.addConstraint(Sketcher.Constraint("Tangent", 17, 2, 4, 1))
sketch8.addConstraint(Sketcher.Constraint("Vertical", 0))
sketch8.addConstraint(Sketcher.Constraint("Horizontal", 1))
sketch8.addConstraint(Sketcher.Constraint("Vertical", 2))
sketch8.addConstraint(Sketcher.Constraint("Horizontal", 3))
sketch8.addConstraint(Sketcher.Constraint("Vertical", 4))
sketch8.addConstraint(Sketcher.Constraint("Horizontal", 5))
sketch8.addConstraint(Sketcher.Constraint("Vertical", 6))
sketch8.addConstraint(Sketcher.Constraint("Horizontal", 8))
sketch8.addConstraint(Sketcher.Constraint("Vertical", 10))
sketch8.addConstraint(Sketcher.Constraint("Horizontal", 12))
sketch8.addConstraint(Sketcher.Constraint("Vertical", 14))
sketch8.addConstraint(Sketcher.Constraint("Horizontal", 16))
sketch8.addConstraint(Sketcher.Constraint("Equal", 7, 17))
sketch8.addConstraint(Sketcher.Constraint("Equal", 18, 19))
sketch8.addConstraint(Sketcher.Constraint("Equal", 19, 20))
sketch8.addConstraint(Sketcher.Constraint("Equal", 20, 21))
sketch8.addConstraint(Sketcher.Constraint("Equal", 21, 22))
sketch8.addConstraint(Sketcher.Constraint("Equal", 22, 23))
sketch8.addConstraint(Sketcher.Constraint("Equal", 24, 25))
sketch8.addConstraint(Sketcher.Constraint("Symmetric", 7, 3, 17, 3, -2))
sketch8.addConstraint(Sketcher.Constraint("Symmetric", 20, 3, 21, 3, -2))
sketch8.addConstraint(Sketcher.Constraint("Symmetric", 19, 3, 22, 3, -2))
sketch8.addConstraint(Sketcher.Constraint("Symmetric", 18, 3, 23, 3, -2))
sketch8.addConstraint(Sketcher.Constraint("Symmetric", 10, 2, 13, 2, -2))
sketch8.addConstraint(Sketcher.Constraint("Symmetric", 24, 3, 25, 3, -1))
sketch8.addConstraint(Sketcher.Constraint("Horizontal", 9, 2, 14, 2))
sketch8.addConstraint(Sketcher.Constraint("Vertical", 19, 3, 20, 3))
sketch8.addConstraint(Sketcher.Constraint("Equal", 8, 16))
sketch8.addConstraint(Sketcher.Constraint("Equal", 11, 13))
sketch8.addConstraint(Sketcher.Constraint("Radius", 7, Q("1 mm")))
sketch8.addConstraint(Sketcher.Constraint("Diameter", 18, Q("4.1 mm")))
sketch8.addConstraint(Sketcher.Constraint("Diameter", 24, Q("5.1 mm")))
sketch8.addConstraint(Sketcher.Constraint("DistanceX", 5, 2, 5, 1, Q("240 mm")))
sketch8.addConstraint(Sketcher.Constraint("DistanceX", 8, 2, 8, 1, Q("24 mm")))
sketch8.addConstraint(Sketcher.Constraint("DistanceX", 12, 1, 12, 2, Q("300 mm")))
sketch8.addConstraint(Sketcher.Constraint("DistanceY", 4, 2, 4, 1, Q("86 mm")))
sketch8.addConstraint(Sketcher.Constraint("DistanceY", 10, 2, 10, 1, Q("195 mm")))
sketch8.addConstraint(Sketcher.Constraint("DistanceY", -1, 1, 7, 3, Q("139 mm")))
sketch8.addConstraint(Sketcher.Constraint("DistanceX", 18, 3, -1, 1, Q("136 mm")))
sketch8.addConstraint(Sketcher.Constraint("DistanceY", 18, 3, -1, 1, Q("100 mm")))
sketch8.addConstraint(Sketcher.Constraint("DistanceX", 19, 3, -1, 1, Q("160 mm")))
sketch8.addConstraint(Sketcher.Constraint("DistanceY", 19, 3, -1, 1, Q("68 mm")))
sketch8.addConstraint(Sketcher.Constraint("DistanceY", -1, 1, 20, 3, Q("85 mm")))
sketch8.addConstraint(Sketcher.Constraint("DistanceX", 24, 3, -1, 1, Q("140 mm")))
sketch8.addConstraint(Sketcher.Constraint("DistanceY", 24, 3, -1, 1, Q("80 mm")))
sketch8.addConstraint(Sketcher.Constraint("DistanceX", 9, 2, -1, 1, Q("170 mm")))
sketch8.addConstraint(Sketcher.Constraint("DistanceY", -1, 1, 9, 2, Q("120 mm")))
sketch8.addConstraint(Sketcher.Constraint("DistanceY", 11, 2, -1, 1, Q("110 mm")))
sketch8.addConstraint(Sketcher.Constraint("DistanceX", 1, 1, 1, 2, Q("426.422 mm")))
sketch8.addConstraint(Sketcher.Constraint("DistanceY", 0, 1, 0, 2, Q("336.422 mm")))
sketch8.addConstraint(Sketcher.Constraint("DistanceX", 0, 2, -1, 1, Q("213.211 mm")))
sketch8.addConstraint(Sketcher.Constraint("DistanceY", -1, 1, 0, 2, Q("183.211 mm")))
pocket7 = body.newObject("PartDesign::Pocket", "Pocket006")
pocket7.Profile = sketch8
pocket7.Length = 10
pocket7.Reversed = True

sketch9 = body.newObject("Sketcher::SketchObject", "Sketch008")
sketch9.AttachmentSupport = (doc.getObject("XZ_Plane"), [""])
sketch9.MapMode = "FlatFace"
add_polygon(sketch9, [(-213.2, -153.2), (-213.2, 183.2), (213.2, 183.2), (213.2, -153.2)])
sketch9.addGeometry(Part.LineSegment(App.Vector(120, 139, 0), App.Vector(120, 53, 0)), False)
sketch9.addGeometry(Part.LineSegment(App.Vector(120, 53, 0), App.Vector(-120, 53, 0)), False)
sketch9.addGeometry(Part.LineSegment(App.Vector(-120, 53, 0), App.Vector(-120, 139, 0)), False)
sketch9.addGeometry(Part.ArcOfCircle(Part.Circle(App.Vector(-121, 139, 0), App.Vector(0, 0, 1), 1), math.radians(0), math.radians(90)), False)
sketch9.addGeometry(Part.LineSegment(App.Vector(-121, 140, 0), App.Vector(-145, 140, 0)), False)
sketch9.addGeometry(Part.LineSegment(App.Vector(-145, 140, 0), App.Vector(-170, 120, 0)), False)
sketch9.addGeometry(Part.LineSegment(App.Vector(-170, 120, 0), App.Vector(-170, -75, 0)), False)
sketch9.addGeometry(Part.LineSegment(App.Vector(-170, -75, 0), App.Vector(-150, -110, 0)), False)
sketch9.addGeometry(Part.LineSegment(App.Vector(-150, -110, 0), App.Vector(150, -110, 0)), False)
sketch9.addGeometry(Part.LineSegment(App.Vector(150, -110, 0), App.Vector(170, -75, 0)), False)
sketch9.addGeometry(Part.LineSegment(App.Vector(170, -75, 0), App.Vector(170, 120, 0)), False)
sketch9.addGeometry(Part.LineSegment(App.Vector(170, 120, 0), App.Vector(145, 140, 0)), False)
sketch9.addGeometry(Part.LineSegment(App.Vector(145, 140, 0), App.Vector(121, 140, 0)), False)
sketch9.addGeometry(Part.ArcOfCircle(Part.Circle(App.Vector(121, 139, 0), App.Vector(0, 0, 1), 1), math.radians(90), math.radians(180)), False)
sketch9.addGeometry(Part.Circle(App.Vector(-55, 38, 0), App.Vector(0, 0, 1), 2), False)
sketch9.addGeometry(Part.Circle(App.Vector(55, 38, 0), App.Vector(0, 0, 1), 2), False)
sketch9.addConstraint(Sketcher.Constraint("Coincident", 4, 2, 5, 1))
sketch9.addConstraint(Sketcher.Constraint("Coincident", 5, 2, 6, 1))
sketch9.addConstraint(Sketcher.Constraint("Tangent", 6, 2, 7, 1))
sketch9.addConstraint(Sketcher.Constraint("Tangent", 7, 2, 8, 1))
sketch9.addConstraint(Sketcher.Constraint("Coincident", 8, 2, 9, 1))
sketch9.addConstraint(Sketcher.Constraint("Coincident", 9, 2, 10, 1))
sketch9.addConstraint(Sketcher.Constraint("Coincident", 10, 2, 11, 1))
sketch9.addConstraint(Sketcher.Constraint("Coincident", 11, 2, 12, 1))
sketch9.addConstraint(Sketcher.Constraint("Coincident", 12, 2, 13, 1))
sketch9.addConstraint(Sketcher.Constraint("Coincident", 13, 2, 14, 1))
sketch9.addConstraint(Sketcher.Constraint("Coincident", 14, 2, 15, 1))
sketch9.addConstraint(Sketcher.Constraint("Coincident", 15, 2, 16, 1))
sketch9.addConstraint(Sketcher.Constraint("Tangent", 16, 2, 17, 1))
sketch9.addConstraint(Sketcher.Constraint("Tangent", 17, 2, 4, 1))
sketch9.addConstraint(Sketcher.Constraint("Vertical", 0))
sketch9.addConstraint(Sketcher.Constraint("Horizontal", 1))
sketch9.addConstraint(Sketcher.Constraint("Vertical", 2))
sketch9.addConstraint(Sketcher.Constraint("Horizontal", 3))
sketch9.addConstraint(Sketcher.Constraint("Vertical", 4))
sketch9.addConstraint(Sketcher.Constraint("Horizontal", 5))
sketch9.addConstraint(Sketcher.Constraint("Vertical", 6))
sketch9.addConstraint(Sketcher.Constraint("Horizontal", 8))
sketch9.addConstraint(Sketcher.Constraint("Vertical", 10))
sketch9.addConstraint(Sketcher.Constraint("Horizontal", 12))
sketch9.addConstraint(Sketcher.Constraint("Vertical", 14))
sketch9.addConstraint(Sketcher.Constraint("Horizontal", 16))
sketch9.addConstraint(Sketcher.Constraint("Equal", 7, 17))
sketch9.addConstraint(Sketcher.Constraint("Equal", 18, 19))
sketch9.addConstraint(Sketcher.Constraint("Symmetric", 7, 3, 17, 3, -2))
sketch9.addConstraint(Sketcher.Constraint("Symmetric", 18, 3, 19, 3, -2))
sketch9.addConstraint(Sketcher.Constraint("Symmetric", 10, 2, 13, 2, -2))
sketch9.addConstraint(Sketcher.Constraint("Horizontal", 9, 2, 14, 2))
sketch9.addConstraint(Sketcher.Constraint("Equal", 8, 16))
sketch9.addConstraint(Sketcher.Constraint("Equal", 11, 13))
sketch9.addConstraint(Sketcher.Constraint("Radius", 7, Q("1 mm")))
sketch9.addConstraint(Sketcher.Constraint("Diameter", 18, Q("4.1 mm")))
sketch9.addConstraint(Sketcher.Constraint("DistanceX", 5, 2, 5, 1, Q("240 mm")))
sketch9.addConstraint(Sketcher.Constraint("DistanceX", 8, 2, 8, 1, Q("24 mm")))
sketch9.addConstraint(Sketcher.Constraint("DistanceX", 12, 1, 12, 2, Q("300 mm")))
sketch9.addConstraint(Sketcher.Constraint("DistanceY", 4, 2, 4, 1, Q("86 mm")))
sketch9.addConstraint(Sketcher.Constraint("DistanceY", 10, 2, 10, 1, Q("195 mm")))
sketch9.addConstraint(Sketcher.Constraint("DistanceY", -1, 1, 7, 3, Q("139 mm")))
sketch9.addConstraint(Sketcher.Constraint("DistanceX", 18, 3, -1, 1, Q("55 mm")))
sketch9.addConstraint(Sketcher.Constraint("DistanceY", -1, 1, 18, 3, Q("38 mm")))
sketch9.addConstraint(Sketcher.Constraint("DistanceX", 9, 2, -1, 1, Q("170 mm")))
sketch9.addConstraint(Sketcher.Constraint("DistanceY", -1, 1, 9, 2, Q("120 mm")))
sketch9.addConstraint(Sketcher.Constraint("DistanceY", 11, 2, -1, 1, Q("110 mm")))
sketch9.addConstraint(Sketcher.Constraint("DistanceX", 1, 1, 1, 2, Q("426.422 mm")))
sketch9.addConstraint(Sketcher.Constraint("DistanceY", 0, 1, 0, 2, Q("336.422 mm")))
sketch9.addConstraint(Sketcher.Constraint("DistanceX", 0, 2, -1, 1, Q("213.211 mm")))
sketch9.addConstraint(Sketcher.Constraint("DistanceY", -1, 1, 0, 2, Q("183.211 mm")))
pocket8 = body.newObject("PartDesign::Pocket", "Pocket007")
pocket8.Profile = sketch9
pocket8.Length = 10
pocket8.Reversed = True

doc.recompute()
